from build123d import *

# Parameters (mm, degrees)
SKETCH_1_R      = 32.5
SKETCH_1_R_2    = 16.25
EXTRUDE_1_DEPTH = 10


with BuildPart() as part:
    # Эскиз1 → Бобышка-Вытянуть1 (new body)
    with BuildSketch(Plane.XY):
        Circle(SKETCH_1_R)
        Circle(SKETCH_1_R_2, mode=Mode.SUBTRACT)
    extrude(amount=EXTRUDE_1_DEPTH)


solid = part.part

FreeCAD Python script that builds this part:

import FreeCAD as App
import Part
import Sketcher
from FreeCAD import Vector

doc = App.newDocument("Part")
params = doc.addObject("Spreadsheet::Sheet", "Params")
for row, (alias, value) in enumerate([
    ("sketch1_diameter", "65 mm"),
    ("sketch1_diameter2", "32.5 mm"),
    ("pad1_length", "10 mm"),
], start=1):
    params.set(f"A{row}", alias)
    params.set(f"B{row}", "=" + value)
    params.setAlias(f"B{row}", alias)

body = doc.addObject("PartDesign::Body", "Body")

sketch1 = body.newObject("Sketcher::SketchObject", "Sketch")
sketch1.AttachmentSupport = (doc.getObject("XY_Plane"), [""])
sketch1.MapMode = "FlatFace"
sketch1.addGeometry([
    Part.Circle(Vector(0, 0, 0), Vector(0, 0, 1), 32),
    Part.Circle(Vector(0, 0, 0), Vector(0, 0, 1), 16),
], False)
sketch1.addConstraint([
    Sketcher.Constraint("Coincident", 0, 3, -1, 1),
    Sketcher.Constraint("Coincident", 1, 3, -1, 1),
    Sketcher.Constraint("Diameter", 0, 65.0),
    Sketcher.Constraint("Diameter", 1, 32.5),
])
sketch1.setExpression("Constraints[2]", "Params.sketch1_diameter")
sketch1.setExpression("Constraints[3]", "Params.sketch1_diameter2")
pad1 = body.newObject("PartDesign::Pad", "Pad")
pad1.Profile = sketch1
pad1.setExpression("Length", "Params.pad1_length")

doc.recompute()
